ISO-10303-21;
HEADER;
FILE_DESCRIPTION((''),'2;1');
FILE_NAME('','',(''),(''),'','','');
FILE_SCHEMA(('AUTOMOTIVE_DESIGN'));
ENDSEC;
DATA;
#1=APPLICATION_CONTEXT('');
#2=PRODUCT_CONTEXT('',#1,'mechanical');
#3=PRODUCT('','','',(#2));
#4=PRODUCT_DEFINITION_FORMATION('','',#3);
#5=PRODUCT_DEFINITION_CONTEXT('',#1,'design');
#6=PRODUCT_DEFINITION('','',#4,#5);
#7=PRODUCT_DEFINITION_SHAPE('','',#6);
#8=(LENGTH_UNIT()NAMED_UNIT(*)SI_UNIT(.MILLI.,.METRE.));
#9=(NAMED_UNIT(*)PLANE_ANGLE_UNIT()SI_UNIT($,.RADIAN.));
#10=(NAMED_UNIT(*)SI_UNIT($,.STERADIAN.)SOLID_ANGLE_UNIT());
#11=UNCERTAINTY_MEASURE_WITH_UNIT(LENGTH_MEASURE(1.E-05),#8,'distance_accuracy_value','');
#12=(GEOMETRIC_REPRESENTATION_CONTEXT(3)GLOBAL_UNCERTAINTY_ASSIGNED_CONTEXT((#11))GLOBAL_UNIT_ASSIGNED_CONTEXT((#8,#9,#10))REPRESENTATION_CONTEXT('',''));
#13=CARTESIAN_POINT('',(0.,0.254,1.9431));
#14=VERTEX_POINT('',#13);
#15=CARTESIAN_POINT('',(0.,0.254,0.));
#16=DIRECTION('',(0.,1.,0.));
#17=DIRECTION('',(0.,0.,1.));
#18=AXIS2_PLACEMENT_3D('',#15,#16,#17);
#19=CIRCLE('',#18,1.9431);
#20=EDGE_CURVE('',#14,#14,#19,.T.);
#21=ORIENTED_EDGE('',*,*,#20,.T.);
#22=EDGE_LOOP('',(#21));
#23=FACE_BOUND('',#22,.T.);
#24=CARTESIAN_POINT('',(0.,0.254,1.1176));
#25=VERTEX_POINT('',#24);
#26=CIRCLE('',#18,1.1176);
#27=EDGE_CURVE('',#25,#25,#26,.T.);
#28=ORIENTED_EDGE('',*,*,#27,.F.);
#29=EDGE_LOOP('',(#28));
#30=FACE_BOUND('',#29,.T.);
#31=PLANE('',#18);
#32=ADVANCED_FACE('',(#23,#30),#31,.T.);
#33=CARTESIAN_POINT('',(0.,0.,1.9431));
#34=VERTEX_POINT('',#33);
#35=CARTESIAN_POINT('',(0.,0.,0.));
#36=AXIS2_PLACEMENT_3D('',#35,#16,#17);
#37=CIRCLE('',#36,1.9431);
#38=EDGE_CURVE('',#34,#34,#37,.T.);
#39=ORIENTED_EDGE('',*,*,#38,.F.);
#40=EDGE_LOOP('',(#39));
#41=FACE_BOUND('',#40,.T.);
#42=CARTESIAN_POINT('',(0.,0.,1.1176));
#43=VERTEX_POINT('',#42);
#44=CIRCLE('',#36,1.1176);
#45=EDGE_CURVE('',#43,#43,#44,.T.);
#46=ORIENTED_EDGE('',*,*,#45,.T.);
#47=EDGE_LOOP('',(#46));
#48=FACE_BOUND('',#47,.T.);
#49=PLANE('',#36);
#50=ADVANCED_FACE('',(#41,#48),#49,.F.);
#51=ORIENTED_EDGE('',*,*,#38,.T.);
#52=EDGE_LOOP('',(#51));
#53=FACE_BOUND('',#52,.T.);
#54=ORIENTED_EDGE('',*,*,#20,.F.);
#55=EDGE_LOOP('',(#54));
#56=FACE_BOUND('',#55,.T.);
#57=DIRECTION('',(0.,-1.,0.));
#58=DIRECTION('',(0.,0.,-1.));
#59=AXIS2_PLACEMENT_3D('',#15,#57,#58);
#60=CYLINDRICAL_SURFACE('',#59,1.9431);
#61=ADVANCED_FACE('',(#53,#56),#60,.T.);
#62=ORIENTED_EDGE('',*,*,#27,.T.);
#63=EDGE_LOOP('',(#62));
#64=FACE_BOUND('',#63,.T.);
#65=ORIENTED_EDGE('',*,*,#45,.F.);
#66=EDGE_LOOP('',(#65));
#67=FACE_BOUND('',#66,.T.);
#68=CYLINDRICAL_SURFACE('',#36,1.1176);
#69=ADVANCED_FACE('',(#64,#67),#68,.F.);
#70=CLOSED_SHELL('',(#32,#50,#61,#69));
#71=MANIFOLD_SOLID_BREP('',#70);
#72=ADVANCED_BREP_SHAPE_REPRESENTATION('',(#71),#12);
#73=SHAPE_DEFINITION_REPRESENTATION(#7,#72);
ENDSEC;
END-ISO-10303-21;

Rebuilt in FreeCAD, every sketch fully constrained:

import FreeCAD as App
import Part
import Sketcher

V = App.Vector
Q = App.Units.Quantity

doc = App.newDocument("Part")
body = doc.addObject("PartDesign::Body", "Body")

# Sketch on XZ plane
sketch1 = doc.addObject("Sketcher::SketchObject", "Sketch")
body.addObject(sketch1)
sketch1.AttachmentSupport = (doc.XZ_Plane, [""])
sketch1.MapMode = "FlatFace"
sketch1.addGeometry(Part.Circle(V(0, 0, 0), V(0, 0, 1), 1.9431), False)
sketch1.addConstraint([
    Sketcher.Constraint("Coincident", 0, 3, -1, 1),
    Sketcher.Constraint("Diameter", 0, Q("0.153 in")),
])
pad1 = doc.addObject("PartDesign::Pad", "Pad")
body.addObject(pad1)
pad1.Profile = sketch1
pad1.Length = Q("0.01 in")
pad1.Reversed = True

# Sketch on XZ plane
sketch2 = doc.addObject("Sketcher::SketchObject", "Sketch001")
body.addObject(sketch2)
sketch2.AttachmentSupport = (doc.XZ_Plane, [""])
sketch2.MapMode = "FlatFace"
sketch2.AttachmentOffset = App.Placement(V(0, 0, -0.01 * 25.4), App.Rotation())
sketch2.addGeometry(Part.Circle(V(0, 0, 0), V(0, 0, 1), 1.1176), False)
sketch2.addConstraint([
    Sketcher.Constraint("Coincident", 0, 3, -1, 1),
    Sketcher.Constraint("Diameter", 0, Q("0.088 in")),
])
pocket1 = doc.addObject("PartDesign::Pocket", "Pocket")
body.addObject(pocket1)
pocket1.Profile = sketch2
pocket1.Type = "ThroughAll"
pocket1.Reversed = True

doc.recompute()
